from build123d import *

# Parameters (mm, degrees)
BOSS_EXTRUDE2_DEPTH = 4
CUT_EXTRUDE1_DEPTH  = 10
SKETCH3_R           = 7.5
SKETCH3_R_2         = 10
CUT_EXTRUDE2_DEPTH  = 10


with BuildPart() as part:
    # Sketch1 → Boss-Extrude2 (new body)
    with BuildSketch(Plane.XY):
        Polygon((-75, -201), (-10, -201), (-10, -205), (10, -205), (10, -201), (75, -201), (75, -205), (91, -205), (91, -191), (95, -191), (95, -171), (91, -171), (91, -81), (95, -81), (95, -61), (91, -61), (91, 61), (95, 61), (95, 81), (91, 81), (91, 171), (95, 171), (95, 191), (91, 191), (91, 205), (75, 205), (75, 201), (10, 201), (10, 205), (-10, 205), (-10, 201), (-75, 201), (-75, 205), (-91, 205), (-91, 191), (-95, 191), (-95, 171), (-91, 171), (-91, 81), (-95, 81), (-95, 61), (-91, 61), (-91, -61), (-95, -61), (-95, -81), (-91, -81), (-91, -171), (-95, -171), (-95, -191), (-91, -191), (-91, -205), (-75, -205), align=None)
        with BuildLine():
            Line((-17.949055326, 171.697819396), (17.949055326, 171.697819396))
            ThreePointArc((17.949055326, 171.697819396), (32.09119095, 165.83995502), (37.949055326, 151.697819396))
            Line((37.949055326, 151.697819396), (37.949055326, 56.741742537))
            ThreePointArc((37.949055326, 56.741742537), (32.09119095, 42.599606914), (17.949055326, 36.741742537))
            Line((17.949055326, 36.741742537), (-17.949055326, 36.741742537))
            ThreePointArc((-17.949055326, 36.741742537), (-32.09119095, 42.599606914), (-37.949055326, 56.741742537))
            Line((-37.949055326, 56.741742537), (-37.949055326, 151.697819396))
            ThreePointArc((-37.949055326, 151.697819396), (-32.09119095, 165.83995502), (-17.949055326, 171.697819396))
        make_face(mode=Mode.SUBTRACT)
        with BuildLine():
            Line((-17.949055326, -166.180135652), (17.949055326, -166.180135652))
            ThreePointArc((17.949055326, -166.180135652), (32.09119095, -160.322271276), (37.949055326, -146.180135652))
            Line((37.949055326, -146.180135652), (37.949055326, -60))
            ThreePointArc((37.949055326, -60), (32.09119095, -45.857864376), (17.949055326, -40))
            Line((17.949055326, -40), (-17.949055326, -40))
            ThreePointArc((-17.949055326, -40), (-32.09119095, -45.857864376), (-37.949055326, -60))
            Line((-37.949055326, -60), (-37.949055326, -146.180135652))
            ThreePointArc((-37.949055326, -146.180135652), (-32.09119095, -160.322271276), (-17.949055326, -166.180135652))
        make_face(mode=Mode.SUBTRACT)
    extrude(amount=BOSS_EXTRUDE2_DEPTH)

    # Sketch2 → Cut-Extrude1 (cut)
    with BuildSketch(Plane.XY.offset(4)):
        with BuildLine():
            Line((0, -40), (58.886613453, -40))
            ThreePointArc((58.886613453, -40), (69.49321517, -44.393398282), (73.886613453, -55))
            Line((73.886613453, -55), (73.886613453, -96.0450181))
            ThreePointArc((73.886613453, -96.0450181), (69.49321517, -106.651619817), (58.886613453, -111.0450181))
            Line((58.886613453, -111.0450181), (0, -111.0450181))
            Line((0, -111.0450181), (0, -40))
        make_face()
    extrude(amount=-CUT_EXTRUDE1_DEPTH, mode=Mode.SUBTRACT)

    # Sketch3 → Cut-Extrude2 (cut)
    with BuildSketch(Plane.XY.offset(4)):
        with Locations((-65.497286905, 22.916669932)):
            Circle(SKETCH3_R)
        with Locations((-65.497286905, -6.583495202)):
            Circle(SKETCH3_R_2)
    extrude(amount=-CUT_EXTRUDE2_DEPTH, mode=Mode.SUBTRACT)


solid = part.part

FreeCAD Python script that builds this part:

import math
import FreeCAD as App
import Part
import Sketcher

V = App.Vector


def add_polygon(sketch, points):
    """Adds a closed chain of lines whose ends are joined by coincident constraints."""
    first, n = sketch.GeometryCount, len(points)
    for a, b in zip(points, points[1:] + points[:1]):
        sketch.addGeometry(Part.LineSegment(App.Vector(*a, 0), App.Vector(*b, 0)), False)
    for i in range(n):
        sketch.addConstraint(Sketcher.Constraint("Coincident", first + i, 2, first + (i + 1) % n, 1))

doc = App.newDocument("Part")
body = doc.addObject("PartDesign::Body", "Body")

# Sketch on XY plane
sketch1 = body.newObject("Sketcher::SketchObject", "Sketch")
sketch1.AttachmentSupport = (doc.getObject("XY_Plane"), [""])
sketch1.MapMode = "FlatFace"
add_polygon(sketch1, [(-75, -201), (-10, -201), (-10, -205), (10, -205), (10, -201), (75, -201), (75, -205), (91, -205), (91, -191), (95, -191), (95, -171), (91, -171), (91, -81), (95, -81), (95, -61), (91, -61), (91, 61), (95, 61), (95, 81), (91, 81), (91, 171), (95, 171), (95, 191), (91, 191), (91, 205), (75, 205), (75, 201), (10, 201), (10, 205), (-10, 205), (-10, 201), (-75, 201), (-75, 205), (-91, 205), (-91, 191), (-95, 191), (-95, 171), (-91, 171), (-91, 81), (-95, 81), (-95, 61), (-91, 61), (-91, -61), (-95, -61), (-95, -81), (-91, -81), (-91, -171), (-95, -171), (-95, -191), (-91, -191), (-91, -205), (-75, -205)])  # lines 0-51
sketch1.addGeometry(Part.LineSegment(V(17.949055, -166.180136, 0), V(-17.949055, -166.180136, 0)), False)  # 52
sketch1.addGeometry(Part.ArcOfCircle(Part.Circle(V(-17.949055, -146.180136, 0), V(0, 0, 1), 20), math.radians(180), math.radians(270)), False)  # 53
sketch1.addGeometry(Part.LineSegment(V(-37.949055, -146.180136, 0), V(-37.949055, -60, 0)), False)  # 54
sketch1.addGeometry(Part.ArcOfCircle(Part.Circle(V(-17.949055, -60, 0), V(0, 0, 1), 20), math.radians(90), math.radians(180)), False)  # 55
sketch1.addGeometry(Part.LineSegment(V(-17.949055, -40, 0), V(17.949055, -40, 0)), False)  # 56
sketch1.addGeometry(Part.ArcOfCircle(Part.Circle(V(17.949055, -60, 0), V(0, 0, 1), 20), math.radians(0), math.radians(90)), False)  # 57
sketch1.addGeometry(Part.LineSegment(V(37.949055, -60, 0), V(37.949055, -146.180136, 0)), False)  # 58
sketch1.addGeometry(Part.ArcOfCircle(Part.Circle(V(17.949055, -146.180136, 0), V(0, 0, 1), 20), math.radians(-90), math.radians(0)), False)  # 59
sketch1.addGeometry(Part.ArcOfCircle(Part.Circle(V(-17.949055, 151.697819, 0), V(0, 0, 1), 20), math.radians(90), math.radians(180)), False)  # 60
sketch1.addGeometry(Part.LineSegment(V(-17.949055, 171.697819, 0), V(17.949055, 171.697819, 0)), False)  # 61
sketch1.addGeometry(Part.ArcOfCircle(Part.Circle(V(17.949055, 151.697819, 0), V(0, 0, 1), 20), math.radians(0), math.radians(90)), False)  # 62
sketch1.addGeometry(Part.LineSegment(V(37.949055, 151.697819, 0), V(37.949055, 56.741743, 0)), False)  # 63
sketch1.addGeometry(Part.ArcOfCircle(Part.Circle(V(17.949055, 56.741743, 0), V(0, 0, 1), 20), math.radians(-90), math.radians(0)), False)  # 64
sketch1.addGeometry(Part.LineSegment(V(17.949055, 36.741743, 0), V(-17.949055, 36.741743, 0)), False)  # 65
sketch1.addGeometry(Part.ArcOfCircle(Part.Circle(V(-17.949055, 56.741743, 0), V(0, 0, 1), 20), math.radians(-180), math.radians(-90)), False)  # 66
sketch1.addGeometry(Part.LineSegment(V(-37.949055, 56.741743, 0), V(-37.949055, 151.697819, 0)), False)  # 67
sketch1.addConstraint([
    Sketcher.Constraint("Tangent", 52, 2, 53, 2),
    Sketcher.Constraint("Tangent", 53, 1, 54, 1),
    Sketcher.Constraint("Tangent", 54, 2, 55, 2),
    Sketcher.Constraint("Tangent", 55, 1, 56, 1),
    Sketcher.Constraint("Tangent", 56, 2, 57, 2),
    Sketcher.Constraint("Tangent", 57, 1, 58, 1),
    Sketcher.Constraint("Tangent", 58, 2, 59, 2),
    Sketcher.Constraint("Tangent", 59, 1, 52, 1),
    Sketcher.Constraint("Tangent", 60, 1, 61, 1),
    Sketcher.Constraint("Tangent", 61, 2, 62, 2),
    Sketcher.Constraint("Tangent", 62, 1, 63, 1),
    Sketcher.Constraint("Tangent", 63, 2, 64, 2),
    Sketcher.Constraint("Tangent", 64, 1, 65, 1),
    Sketcher.Constraint("Tangent", 65, 2, 66, 2),
    Sketcher.Constraint("Tangent", 66, 1, 67, 1),
    Sketcher.Constraint("Tangent", 67, 2, 60, 2),
    Sketcher.Constraint("Horizontal", 0),
    Sketcher.Constraint("Vertical", 1),
    Sketcher.Constraint("Horizontal", 2),
    Sketcher.Constraint("Vertical", 3),
    Sketcher.Constraint("Horizontal", 4),
    Sketcher.Constraint("Vertical", 5),
    Sketcher.Constraint("Horizontal", 6),
    Sketcher.Constraint("Vertical", 7),
    Sketcher.Constraint("Horizontal", 8),
    Sketcher.Constraint("Vertical", 9),
    Sketcher.Constraint("Horizontal", 10),
    Sketcher.Constraint("Vertical", 11),
    Sketcher.Constraint("Horizontal", 12),
    Sketcher.Constraint("Vertical", 13),
    Sketcher.Constraint("Horizontal", 14),
    Sketcher.Constraint("Vertical", 15),
    Sketcher.Constraint("Horizontal", 16),
    Sketcher.Constraint("Vertical", 17),
    Sketcher.Constraint("Horizontal", 18),
    Sketcher.Constraint("Vertical", 19),
    Sketcher.Constraint("Horizontal", 20),
    Sketcher.Constraint("Vertical", 21),
    Sketcher.Constraint("Horizontal", 22),
    Sketcher.Constraint("Vertical", 23),
    Sketcher.Constraint("Horizontal", 24),
    Sketcher.Constraint("Vertical", 25),
    Sketcher.Constraint("Horizontal", 26),
    Sketcher.Constraint("Vertical", 27),
    Sketcher.Constraint("Horizontal", 28),
    Sketcher.Constraint("Vertical", 29),
    Sketcher.Constraint("Horizontal", 30),
    Sketcher.Constraint("Vertical", 31),
    Sketcher.Constraint("Horizontal", 32),
    Sketcher.Constraint("Vertical", 33),
    Sketcher.Constraint("Horizontal", 34),
    Sketcher.Constraint("Vertical", 35),
    Sketcher.Constraint("Horizontal", 36),
    Sketcher.Constraint("Vertical", 37),
    Sketcher.Constraint("Horizontal", 38),
    Sketcher.Constraint("Vertical", 39),
    Sketcher.Constraint("Horizontal", 40),
    Sketcher.Constraint("Vertical", 41),
    Sketcher.Constraint("Horizontal", 42),
    Sketcher.Constraint("Vertical", 43),
    Sketcher.Constraint("Horizontal", 44),
    Sketcher.Constraint("Vertical", 45),
    Sketcher.Constraint("Horizontal", 46),
    Sketcher.Constraint("Vertical", 47),
    Sketcher.Constraint("Horizontal", 48),
    Sketcher.Constraint("Vertical", 49),
    Sketcher.Constraint("Horizontal", 50),
    Sketcher.Constraint("Vertical", 51),
    Sketcher.Constraint("Horizontal", 52),
    Sketcher.Constraint("Vertical", 54),
    Sketcher.Constraint("Horizontal", 56),
    Sketcher.Constraint("Vertical", 58),
    Sketcher.Constraint("Horizontal", 61),
    Sketcher.Constraint("Vertical", 63),
    Sketcher.Constraint("Horizontal", 65),
    Sketcher.Constraint("Vertical", 67),
    Sketcher.Constraint("Equal", 53, 55),
    Sketcher.Constraint("Equal", 55, 57),
    Sketcher.Constraint("Equal", 57, 59),
    Sketcher.Constraint("Equal", 59, 60),
    Sketcher.Constraint("Equal", 60, 62),
    Sketcher.Constraint("Equal", 62, 64),
    Sketcher.Constraint("Equal", 64, 66),
    Sketcher.Constraint("Symmetric", 0, 2, 26, 2, -1, 1),
    Sketcher.Constraint("Symmetric", 2, 2, 28, 2, -1, 1),
    Sketcher.Constraint("Symmetric", 4, 2, 30, 2, -1, 1),
    Sketcher.Constraint("Symmetric", 6, 2, 32, 2, -1, 1),
    Sketcher.Constraint("Symmetric", 8, 2, 34, 2, -1, 1),
    Sketcher.Constraint("Symmetric", 10, 2, 36, 2, -1, 1),
    Sketcher.Constraint("Symmetric", 12, 2, 38, 2, -1, 1),
    Sketcher.Constraint("Symmetric", 14, 2, 40, 2, -1, 1),
    Sketcher.Constraint("Symmetric", 16, 2, 42, 2, -1, 1),
    Sketcher.Constraint("Symmetric", 18, 2, 44, 2, -1, 1),
    Sketcher.Constraint("Symmetric", 20, 2, 46, 2, -1, 1),
    Sketcher.Constraint("Symmetric", 22, 2, 48, 2, -1, 1),
    Sketcher.Constraint("Symmetric", 24, 2, 50, 2, -1, 1),
    Sketcher.Constraint("Symmetric", 0, 2, 3, 2, -2),
    Sketcher.Constraint("Symmetric", 24, 2, 31, 2, -2),
    Sketcher.Constraint("Symmetric", 22, 2, 33, 2, -2),
    Sketcher.Constraint("Symmetric", 20, 2, 35, 2, -2),
    Sketcher.Constraint("Symmetric", 18, 2, 37, 2, -2),
    Sketcher.Constraint("Symmetric", 16, 2, 39, 2, -2),
    Sketcher.Constraint("Horizontal", 2, 2, 5, 2),
    Sketcher.Constraint("Vertical", 55, 3, 60, 3),
    Sketcher.Constraint("Vertical", 59, 3, 62, 3),
    Sketcher.Constraint("Vertical", 7, 2, 10, 2),
    Sketcher.Constraint("Vertical", 9, 2, 12, 2),
    Sketcher.Constraint("Vertical", 11, 2, 14, 2),
    Sketcher.Constraint("Equal", 48, 1),
    Sketcher.Constraint("Equal", 28, 9),
    Sketcher.Constraint("Equal", 9, 13),
    Sketcher.Constraint("Radius", 53, 20.0),
    Sketcher.Constraint("DistanceX", 0, 1, 0, 2, 65.0),
    Sketcher.Constraint("DistanceX", 2, 1, 2, 2, 20.0),
    Sketcher.Constraint("DistanceX", 6, 1, 6, 2, 16.0),
    Sketcher.Constraint("DistanceX", 8, 1, 8, 2, 4.0),
    Sketcher.Constraint("DistanceY", 7, 1, 7, 2, 14.0),
    Sketcher.Constraint("DistanceY", 11, 1, 11, 2, 90.0),
    Sketcher.Constraint("DistanceY", 15, 1, 15, 2, 122.0),
    Sketcher.Constraint("DistanceY", 55, 3, -1, 1, 60.0),
    Sketcher.Constraint("DistanceX", 52, 2, 52, 1, 35.898111),
    Sketcher.Constraint("DistanceY", 54, 1, 54, 2, 86.180136),
    Sketcher.Constraint("DistanceY", 63, 2, 63, 1, 94.956077),
    Sketcher.Constraint("DistanceY", -1, 1, 60, 3, 151.697819),
    Sketcher.Constraint("DistanceX", 53, 3, -1, 1, 17.949055),
])
pad1 = body.newObject("PartDesign::Pad", "Pad")
pad1.Profile = sketch1
pad1.Length = 4

# Sketch on XY plane
sketch2 = body.newObject("Sketcher::SketchObject", "Sketch001")
sketch2.AttachmentSupport = (doc.getObject("XY_Plane"), [""])
sketch2.MapMode = "FlatFace"
sketch2.AttachmentOffset = App.Placement(V(0, 0, 4), App.Rotation())
sketch2.addGeometry([
    Part.LineSegment(V(58.886613, -40, 0), V(0, -40, 0)),  # 0
    Part.LineSegment(V(0, -40, 0), V(0, -111.045018, 0)),  # 1
    Part.LineSegment(V(0, -111.045018, 0), V(58.886613, -111.045018, 0)),  # 2
    Part.ArcOfCircle(Part.Circle(V(58.886613, -96.045018, 0), V(0, 0, 1), 15), math.radians(-90), math.radians(0)),  # 3
    Part.LineSegment(V(73.886613, -96.045018, 0), V(73.886613, -55, 0)),  # 4
    Part.ArcOfCircle(Part.Circle(V(58.886613, -55, 0), V(0, 0, 1), 15), math.radians(0), math.radians(90)),  # 5
], False)
sketch2.addConstraint([
    Sketcher.Constraint("Coincident", 0, 2, 1, 1),
    Sketcher.Constraint("Coincident", 1, 2, 2, 1),
    Sketcher.Constraint("Tangent", 2, 2, 3, 1),
    Sketcher.Constraint("Tangent", 3, 2, 4, 1),
    Sketcher.Constraint("Tangent", 4, 2, 5, 1),
    Sketcher.Constraint("Tangent", 5, 2, 0, 1),
    Sketcher.Constraint("Horizontal", 0),
    Sketcher.Constraint("Vertical", 1),
    Sketcher.Constraint("Horizontal", 2),
    Sketcher.Constraint("Vertical", 4),
    Sketcher.Constraint("Equal", 3, 5),
    Sketcher.Constraint("PointOnObject", 0, 2, -2),
    Sketcher.Constraint("Radius", 3, 15.0),
    Sketcher.Constraint("DistanceY", 5, 3, -1, 1, 55.0),
    Sketcher.Constraint("DistanceY", 1, 2, 1, 1, 71.045018),
    Sketcher.Constraint("DistanceX", 0, 2, 0, 1, 58.886613),
])
pocket1 = body.newObject("PartDesign::Pocket", "Pocket")
pocket1.Profile = sketch2
pocket1.Length = 10

# Sketch on XY plane
sketch3 = body.newObject("Sketcher::SketchObject", "Sketch002")
sketch3.AttachmentSupport = (doc.getObject("XY_Plane"), [""])
sketch3.MapMode = "FlatFace"
sketch3.AttachmentOffset = App.Placement(V(0, 0, 4), App.Rotation())
sketch3.addGeometry([
    Part.Circle(V(-65.497287, 22.91667, 0), V(0, 0, 1), 7.5),
    Part.Circle(V(-65.497287, -6.583495, 0), V(0, 0, 1), 10),
], False)
sketch3.addConstraint([
    Sketcher.Constraint("Vertical", 0, 3, 1, 3),
    Sketcher.Constraint("Diameter", 0, 15.0),
    Sketcher.Constraint("Diameter", 1, 20.0),
    Sketcher.Constraint("DistanceY", -1, 1, 0, 3, 22.91667),
    Sketcher.Constraint("DistanceX", 0, 3, -1, 1, 65.497287),
    Sketcher.Constraint("DistanceY", 1, 3, -1, 1, 6.583495),
])
pocket2 = body.newObject("PartDesign::Pocket", "Pocket001")
pocket2.Profile = sketch3
pocket2.Length = 10

doc.recompute()
